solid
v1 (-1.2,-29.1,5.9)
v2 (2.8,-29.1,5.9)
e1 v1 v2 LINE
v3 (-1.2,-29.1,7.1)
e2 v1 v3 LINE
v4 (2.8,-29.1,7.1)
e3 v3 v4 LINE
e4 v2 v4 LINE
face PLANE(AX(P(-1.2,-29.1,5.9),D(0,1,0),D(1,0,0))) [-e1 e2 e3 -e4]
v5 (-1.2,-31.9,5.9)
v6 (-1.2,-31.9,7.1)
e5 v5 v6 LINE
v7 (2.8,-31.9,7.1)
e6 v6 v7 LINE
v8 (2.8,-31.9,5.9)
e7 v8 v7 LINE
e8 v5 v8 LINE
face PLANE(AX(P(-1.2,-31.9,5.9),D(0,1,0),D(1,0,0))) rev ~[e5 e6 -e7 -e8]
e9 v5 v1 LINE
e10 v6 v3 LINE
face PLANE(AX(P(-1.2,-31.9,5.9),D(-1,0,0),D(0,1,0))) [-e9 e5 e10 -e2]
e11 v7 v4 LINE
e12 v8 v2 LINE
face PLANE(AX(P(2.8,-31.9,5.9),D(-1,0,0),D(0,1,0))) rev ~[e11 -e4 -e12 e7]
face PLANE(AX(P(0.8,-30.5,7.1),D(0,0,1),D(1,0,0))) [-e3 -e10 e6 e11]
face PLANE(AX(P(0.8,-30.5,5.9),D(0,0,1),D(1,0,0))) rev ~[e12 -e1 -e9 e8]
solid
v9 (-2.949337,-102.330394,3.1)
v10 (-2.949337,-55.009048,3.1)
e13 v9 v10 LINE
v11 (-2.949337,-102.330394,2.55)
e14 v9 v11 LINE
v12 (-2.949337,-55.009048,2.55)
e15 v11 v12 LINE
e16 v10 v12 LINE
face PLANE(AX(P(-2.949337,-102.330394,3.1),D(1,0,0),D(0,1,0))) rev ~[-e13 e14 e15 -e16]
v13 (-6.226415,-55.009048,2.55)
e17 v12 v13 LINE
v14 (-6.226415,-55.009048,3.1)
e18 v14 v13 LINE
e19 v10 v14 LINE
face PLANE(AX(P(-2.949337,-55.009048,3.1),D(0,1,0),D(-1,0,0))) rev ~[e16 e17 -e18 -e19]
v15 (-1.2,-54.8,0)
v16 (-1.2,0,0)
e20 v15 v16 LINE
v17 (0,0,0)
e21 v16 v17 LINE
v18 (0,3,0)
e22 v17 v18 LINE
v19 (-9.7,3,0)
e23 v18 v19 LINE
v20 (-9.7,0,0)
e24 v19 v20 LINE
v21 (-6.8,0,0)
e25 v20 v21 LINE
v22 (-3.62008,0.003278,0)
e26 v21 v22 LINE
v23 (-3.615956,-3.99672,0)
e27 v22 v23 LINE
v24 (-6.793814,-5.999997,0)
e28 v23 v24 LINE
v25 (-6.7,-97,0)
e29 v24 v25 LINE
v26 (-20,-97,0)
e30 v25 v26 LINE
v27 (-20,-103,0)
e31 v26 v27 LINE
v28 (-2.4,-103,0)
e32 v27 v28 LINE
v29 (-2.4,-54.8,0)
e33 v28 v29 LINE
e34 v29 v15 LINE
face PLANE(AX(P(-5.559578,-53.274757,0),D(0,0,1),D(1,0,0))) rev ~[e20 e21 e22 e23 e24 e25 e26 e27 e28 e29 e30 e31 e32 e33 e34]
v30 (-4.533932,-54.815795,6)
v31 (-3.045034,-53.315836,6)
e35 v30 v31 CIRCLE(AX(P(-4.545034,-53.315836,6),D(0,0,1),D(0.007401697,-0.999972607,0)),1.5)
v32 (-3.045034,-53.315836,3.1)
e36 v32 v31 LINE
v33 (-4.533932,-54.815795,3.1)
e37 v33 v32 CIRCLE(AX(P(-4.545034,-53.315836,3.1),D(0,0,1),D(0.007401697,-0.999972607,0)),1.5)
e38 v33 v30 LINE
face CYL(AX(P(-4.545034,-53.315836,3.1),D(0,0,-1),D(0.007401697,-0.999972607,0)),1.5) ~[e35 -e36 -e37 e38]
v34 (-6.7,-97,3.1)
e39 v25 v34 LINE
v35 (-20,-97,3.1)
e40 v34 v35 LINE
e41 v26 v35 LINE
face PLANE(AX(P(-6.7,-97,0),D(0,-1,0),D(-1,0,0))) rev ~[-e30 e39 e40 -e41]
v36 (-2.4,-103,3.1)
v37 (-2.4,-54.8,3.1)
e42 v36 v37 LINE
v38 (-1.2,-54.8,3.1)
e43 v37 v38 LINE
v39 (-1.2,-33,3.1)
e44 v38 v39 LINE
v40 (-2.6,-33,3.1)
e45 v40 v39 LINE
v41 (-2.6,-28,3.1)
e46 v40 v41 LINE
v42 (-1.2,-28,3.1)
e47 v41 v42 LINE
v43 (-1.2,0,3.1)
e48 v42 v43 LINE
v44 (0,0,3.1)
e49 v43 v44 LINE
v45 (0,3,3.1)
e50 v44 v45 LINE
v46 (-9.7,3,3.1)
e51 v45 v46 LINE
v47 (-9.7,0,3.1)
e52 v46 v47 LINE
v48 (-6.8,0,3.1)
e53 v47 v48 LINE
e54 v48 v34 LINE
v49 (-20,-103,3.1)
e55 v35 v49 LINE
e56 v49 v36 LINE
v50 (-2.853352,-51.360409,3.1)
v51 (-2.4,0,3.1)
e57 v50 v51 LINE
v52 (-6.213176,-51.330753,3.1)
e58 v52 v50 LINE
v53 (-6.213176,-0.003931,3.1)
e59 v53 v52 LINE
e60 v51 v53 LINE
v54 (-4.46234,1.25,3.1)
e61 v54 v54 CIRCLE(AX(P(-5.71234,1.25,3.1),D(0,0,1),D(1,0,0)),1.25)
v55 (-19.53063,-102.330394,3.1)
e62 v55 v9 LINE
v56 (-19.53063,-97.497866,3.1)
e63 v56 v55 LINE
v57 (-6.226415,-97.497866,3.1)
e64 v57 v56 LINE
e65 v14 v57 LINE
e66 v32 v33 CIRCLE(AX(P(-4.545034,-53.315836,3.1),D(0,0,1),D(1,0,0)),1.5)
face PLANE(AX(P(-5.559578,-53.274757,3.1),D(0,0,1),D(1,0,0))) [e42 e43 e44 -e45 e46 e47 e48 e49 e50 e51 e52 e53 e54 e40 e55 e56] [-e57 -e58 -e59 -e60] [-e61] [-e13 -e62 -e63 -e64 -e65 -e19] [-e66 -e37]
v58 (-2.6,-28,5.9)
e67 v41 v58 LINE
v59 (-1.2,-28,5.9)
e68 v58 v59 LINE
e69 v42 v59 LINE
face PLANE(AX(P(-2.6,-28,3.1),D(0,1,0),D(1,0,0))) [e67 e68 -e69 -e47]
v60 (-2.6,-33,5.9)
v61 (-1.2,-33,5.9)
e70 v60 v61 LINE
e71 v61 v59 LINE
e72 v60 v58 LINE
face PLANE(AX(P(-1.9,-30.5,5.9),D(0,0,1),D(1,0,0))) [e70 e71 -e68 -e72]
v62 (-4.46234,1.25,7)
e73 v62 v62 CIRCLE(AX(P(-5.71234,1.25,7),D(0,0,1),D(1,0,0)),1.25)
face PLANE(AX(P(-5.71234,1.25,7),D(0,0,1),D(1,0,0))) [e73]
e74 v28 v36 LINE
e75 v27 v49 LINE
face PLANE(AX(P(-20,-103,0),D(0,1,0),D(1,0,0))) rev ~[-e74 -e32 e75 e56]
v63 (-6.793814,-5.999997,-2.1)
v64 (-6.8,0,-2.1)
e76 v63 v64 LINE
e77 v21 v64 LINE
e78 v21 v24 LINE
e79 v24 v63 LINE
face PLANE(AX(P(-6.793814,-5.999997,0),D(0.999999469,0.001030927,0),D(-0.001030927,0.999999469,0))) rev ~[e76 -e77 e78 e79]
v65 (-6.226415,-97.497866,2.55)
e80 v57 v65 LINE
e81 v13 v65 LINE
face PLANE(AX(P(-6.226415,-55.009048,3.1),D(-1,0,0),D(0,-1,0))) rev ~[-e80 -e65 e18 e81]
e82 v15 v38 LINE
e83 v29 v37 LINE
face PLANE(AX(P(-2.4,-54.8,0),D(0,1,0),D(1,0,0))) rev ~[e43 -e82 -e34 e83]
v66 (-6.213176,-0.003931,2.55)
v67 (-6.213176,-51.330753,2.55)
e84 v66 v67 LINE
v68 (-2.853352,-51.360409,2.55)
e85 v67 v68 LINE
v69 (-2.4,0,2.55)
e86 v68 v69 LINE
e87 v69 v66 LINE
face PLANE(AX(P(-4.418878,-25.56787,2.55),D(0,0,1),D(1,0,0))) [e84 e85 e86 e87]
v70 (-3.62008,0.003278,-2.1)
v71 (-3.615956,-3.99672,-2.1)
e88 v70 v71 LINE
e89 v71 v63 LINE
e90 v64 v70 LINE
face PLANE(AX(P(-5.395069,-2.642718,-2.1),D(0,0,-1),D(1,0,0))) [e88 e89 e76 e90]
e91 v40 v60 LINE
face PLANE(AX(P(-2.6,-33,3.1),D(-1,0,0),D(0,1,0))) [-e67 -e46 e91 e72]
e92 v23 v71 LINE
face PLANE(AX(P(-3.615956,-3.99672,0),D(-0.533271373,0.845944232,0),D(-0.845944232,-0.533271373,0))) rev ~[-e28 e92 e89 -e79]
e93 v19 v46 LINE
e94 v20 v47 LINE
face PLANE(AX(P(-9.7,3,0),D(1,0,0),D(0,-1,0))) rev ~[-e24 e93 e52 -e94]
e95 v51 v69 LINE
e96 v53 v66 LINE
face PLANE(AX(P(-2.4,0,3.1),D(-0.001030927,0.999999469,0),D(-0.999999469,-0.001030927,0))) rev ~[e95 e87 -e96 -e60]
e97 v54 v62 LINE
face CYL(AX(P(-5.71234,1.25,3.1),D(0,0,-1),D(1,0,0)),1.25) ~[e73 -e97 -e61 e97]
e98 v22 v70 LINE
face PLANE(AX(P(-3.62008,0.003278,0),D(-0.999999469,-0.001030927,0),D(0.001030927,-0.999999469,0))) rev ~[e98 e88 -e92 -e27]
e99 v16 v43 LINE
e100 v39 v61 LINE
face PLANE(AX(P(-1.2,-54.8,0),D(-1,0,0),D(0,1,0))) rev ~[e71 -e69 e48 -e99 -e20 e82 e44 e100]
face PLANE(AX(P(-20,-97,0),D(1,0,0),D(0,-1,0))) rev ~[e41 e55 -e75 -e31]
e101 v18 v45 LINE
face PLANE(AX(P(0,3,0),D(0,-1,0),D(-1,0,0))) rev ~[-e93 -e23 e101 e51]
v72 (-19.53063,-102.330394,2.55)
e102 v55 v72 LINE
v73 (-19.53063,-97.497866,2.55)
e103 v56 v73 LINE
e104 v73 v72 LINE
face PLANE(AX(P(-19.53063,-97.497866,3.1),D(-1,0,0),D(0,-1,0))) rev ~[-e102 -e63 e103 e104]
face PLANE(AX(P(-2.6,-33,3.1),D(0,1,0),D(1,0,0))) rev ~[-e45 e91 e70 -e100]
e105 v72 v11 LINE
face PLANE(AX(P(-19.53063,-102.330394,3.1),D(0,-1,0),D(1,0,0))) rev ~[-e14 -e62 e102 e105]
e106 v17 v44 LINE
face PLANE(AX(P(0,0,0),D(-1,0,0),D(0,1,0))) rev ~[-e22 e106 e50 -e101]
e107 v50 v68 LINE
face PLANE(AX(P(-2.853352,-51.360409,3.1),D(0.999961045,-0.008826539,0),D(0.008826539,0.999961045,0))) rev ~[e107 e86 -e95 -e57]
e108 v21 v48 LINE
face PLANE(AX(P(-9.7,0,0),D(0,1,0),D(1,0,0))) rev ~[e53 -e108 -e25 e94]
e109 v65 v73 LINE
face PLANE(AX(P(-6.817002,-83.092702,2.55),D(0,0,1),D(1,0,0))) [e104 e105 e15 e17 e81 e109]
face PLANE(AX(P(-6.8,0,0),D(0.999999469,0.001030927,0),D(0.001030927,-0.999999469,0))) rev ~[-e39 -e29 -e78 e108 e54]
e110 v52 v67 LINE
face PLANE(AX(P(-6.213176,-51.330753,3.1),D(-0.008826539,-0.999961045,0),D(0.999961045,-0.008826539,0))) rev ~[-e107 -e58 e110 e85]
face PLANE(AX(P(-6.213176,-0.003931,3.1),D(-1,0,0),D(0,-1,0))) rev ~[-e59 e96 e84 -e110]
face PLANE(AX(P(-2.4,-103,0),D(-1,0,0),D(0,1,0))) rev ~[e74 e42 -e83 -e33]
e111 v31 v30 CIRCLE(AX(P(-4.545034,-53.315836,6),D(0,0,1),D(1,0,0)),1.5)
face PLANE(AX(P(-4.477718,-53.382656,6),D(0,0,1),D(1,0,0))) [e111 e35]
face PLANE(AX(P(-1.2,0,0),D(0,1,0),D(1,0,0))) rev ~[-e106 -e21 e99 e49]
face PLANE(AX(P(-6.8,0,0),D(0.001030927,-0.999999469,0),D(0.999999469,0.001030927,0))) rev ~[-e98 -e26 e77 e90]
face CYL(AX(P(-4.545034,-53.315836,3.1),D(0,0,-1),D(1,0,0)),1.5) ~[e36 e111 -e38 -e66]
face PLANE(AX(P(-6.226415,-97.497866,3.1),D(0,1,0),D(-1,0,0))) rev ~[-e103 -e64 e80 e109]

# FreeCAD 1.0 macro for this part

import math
import FreeCAD as App
import Part
import Sketcher
from FreeCAD import Vector
Q = App.Units.Quantity


def add_polygon(sketch, points):
    """Adds a closed chain of lines whose ends are joined by coincident constraints."""
    first, n = sketch.GeometryCount, len(points)
    for a, b in zip(points, points[1:] + points[:1]):
        sketch.addGeometry(Part.LineSegment(App.Vector(*a, 0), App.Vector(*b, 0)), False)
    for i in range(n):
        sketch.addConstraint(Sketcher.Constraint("Coincident", first + i, 2, first + (i + 1) % n, 1))

doc = App.newDocument("Part")
body = doc.addObject("PartDesign::Body", "Body")

sketch1 = body.newObject("Sketcher::SketchObject", "Sketch")
sketch1.AttachmentSupport = (doc.getObject("XY_Plane"), [""])
sketch1.MapMode = "FlatFace"
add_polygon(sketch1, [(0, 0), (0, 3), (-9.7, 3), (-9.7, 0), (-6.8, 0), (-6.7, -97), (-20, -97), (-20, -103), (-2.4, -103), (-2.4, -54.8), (-1.2, -54.8), (-1.2, 0)])
sketch1.addConstraint(Sketcher.Constraint("Vertical", 0))
sketch1.addConstraint(Sketcher.Constraint("Horizontal", 1))
sketch1.addConstraint(Sketcher.Constraint("Vertical", 2))
sketch1.addConstraint(Sketcher.Constraint("Horizontal", 3))
sketch1.addConstraint(Sketcher.Constraint("Horizontal", 5))
sketch1.addConstraint(Sketcher.Constraint("Vertical", 6))
sketch1.addConstraint(Sketcher.Constraint("Horizontal", 7))
sketch1.addConstraint(Sketcher.Constraint("Vertical", 8))
sketch1.addConstraint(Sketcher.Constraint("Horizontal", 9))
sketch1.addConstraint(Sketcher.Constraint("Vertical", 10))
sketch1.addConstraint(Sketcher.Constraint("Horizontal", 11))
sketch1.addConstraint(Sketcher.Constraint("Coincident", 11, 2, -1, 1))
sketch1.addConstraint(Sketcher.Constraint("PointOnObject", 2, 2, -1))
sketch1.addConstraint(Sketcher.Constraint("Equal", 9, 11))
sketch1.addConstraint(Sketcher.Constraint("DistanceY", 0, 1, 0, 2, Q("3 mm")))
sketch1.addConstraint(Sketcher.Constraint("DistanceY", 6, 2, 6, 1, Q("6 mm")))
sketch1.addConstraint(Sketcher.Constraint("DistanceX", 1, 2, 1, 1, Q("9.7 mm")))
sketch1.addConstraint(Sketcher.Constraint("DistanceX", 3, 1, 3, 2, Q("2.9 mm")))
sketch1.addConstraint(Sketcher.Constraint("DistanceX", 5, 2, 5, 1, Q("13.3 mm")))
sketch1.addConstraint(Sketcher.Constraint("DistanceX", 7, 1, 7, 2, Q("17.6 mm")))
sketch1.addConstraint(Sketcher.Constraint("DistanceX", 9, 1, 9, 2, Q("1.2 mm")))
sketch1.addConstraint(Sketcher.Constraint("DistanceY", 8, 1, 8, 2, Q("48.2 mm")))
sketch1.addConstraint(Sketcher.Constraint("DistanceY", 10, 1, 10, 2, Q("54.8 mm")))
pad1 = body.newObject("PartDesign::Pad", "Pad")
pad1.Profile = sketch1
pad1.Length = 3.1

sketch2 = body.newObject("Sketcher::SketchObject", "Sketch001")
sketch2.AttachmentSupport = (doc.getObject("XY_Plane"), [""])
sketch2.MapMode = "FlatFace"
add_polygon(sketch2, [(-6.8, -6), (-6.8, 0), (-3.6, 0), (-3.6, -4)])
sketch2.addConstraint(Sketcher.Constraint("PointOnObject", 0, 2, -1))
sketch2.addConstraint(Sketcher.Constraint("Perpendicular", 0, 1))
sketch2.addConstraint(Sketcher.Constraint("Perpendicular", 1, 2))
sketch2.addConstraint(Sketcher.Constraint("Distance", 0, Q("6 mm")))
sketch2.addConstraint(Sketcher.Constraint("Distance", 2, Q("4 mm")))
sketch2.addConstraint(Sketcher.Constraint("DistanceX", 0, 2, -1, 1, Q("6.8 mm")))
sketch2.addConstraint(Sketcher.Constraint("Distance", 1, Q("3.179922 mm")))
sketch2.addConstraint(Sketcher.Constraint("DistanceY", -1, 1, 1, 2, Q("0.003278 mm")))
pad2 = body.newObject("PartDesign::Pad", "Pad001")
pad2.Profile = sketch2
pad2.Length = 2.1
pad2.Reversed = True

sketch3 = body.newObject("Sketcher::SketchObject", "Sketch002")
sketch3.AttachmentSupport = (doc.getObject("XY_Plane"), [""])
sketch3.MapMode = "FlatFace"
sketch3.AttachmentOffset = App.Placement(Vector(0, 0, 3.1), App.Rotation())
sketch3.addGeometry(Part.Circle(Vector(-5.7, 1.2, 0), Vector(0, 0, 1), 1.2), False)
sketch3.addConstraint(Sketcher.Constraint("Diameter", 0, Q("2.5 mm")))
sketch3.addConstraint(Sketcher.Constraint("DistanceY", -1, 1, 0, 3, Q("1.25 mm")))
sketch3.addConstraint(Sketcher.Constraint("DistanceX", 0, 3, -1, 1, Q("5.71234 mm")))
pad3 = body.newObject("PartDesign::Pad", "Pad002")
pad3.Profile = sketch3
pad3.Length = 3.9

sketch4 = body.newObject("Sketcher::SketchObject", "Sketch003")
sketch4.AttachmentSupport = (doc.getObject("XY_Plane"), [""])
sketch4.MapMode = "FlatFace"
sketch4.AttachmentOffset = App.Placement(Vector(0, 0, 3.1), App.Rotation())
add_polygon(sketch4, [(-2.6, -28), (-2.6, -33), (-1.2, -33), (-1.2, -28)])
sketch4.addConstraint(Sketcher.Constraint("Vertical", 0))
sketch4.addConstraint(Sketcher.Constraint("Horizontal", 1))
sketch4.addConstraint(Sketcher.Constraint("Vertical", 2))
sketch4.addConstraint(Sketcher.Constraint("Horizontal", 3))
sketch4.addConstraint(Sketcher.Constraint("DistanceY", 0, 2, 0, 1, Q("5 mm")))
sketch4.addConstraint(Sketcher.Constraint("DistanceX", 1, 1, 1, 2, Q("1.4 mm")))
sketch4.addConstraint(Sketcher.Constraint("DistanceY", 0, 2, -1, 1, Q("33 mm")))
sketch4.addConstraint(Sketcher.Constraint("DistanceX", 0, 2, -1, 1, Q("2.6 mm")))
pad4 = body.newObject("PartDesign::Pad", "Pad003")
pad4.Profile = sketch4
pad4.Length = 2.8

sketch5 = body.newObject("Sketcher::SketchObject", "Sketch004")
sketch5.AttachmentSupport = (doc.getObject("XY_Plane"), [""])
sketch5.MapMode = "FlatFace"
sketch5.AttachmentOffset = App.Placement(Vector(0, 0, 3.1), App.Rotation())
sketch5.addGeometry(Part.ArcOfCircle(Part.Circle(Vector(-4.545034, -53.315836, 0), Vector(0, 0, 1), 1.5), math.radians(-89.57591), math.radians(0)), False)
sketch5.addGeometry(Part.ArcOfCircle(Part.Circle(Vector(-4.545034, -53.315836, 0), Vector(0, 0, 1), 1.5), math.radians(0), math.radians(270.42409)), False)
sketch5.addConstraint(Sketcher.Constraint("Tangent", 0, 1, 1, 2))
sketch5.addConstraint(Sketcher.Constraint("Coincident", 1, 1, 0, 2))
sketch5.addConstraint(Sketcher.Constraint("Horizontal", 0, 3, 1, 1))
sketch5.addConstraint(Sketcher.Constraint("Radius", 0, Q("1.5 mm")))
sketch5.addConstraint(Sketcher.Constraint("DistanceX", 0, 1, -1, 1, Q("4.533932 mm")))
sketch5.addConstraint(Sketcher.Constraint("DistanceY", 0, 1, 0, 3, Q("1.499959 mm")))
sketch5.addConstraint(Sketcher.Constraint("DistanceY", 0, 3, -1, 1, Q("53.315836 mm")))
pad5 = body.newObject("PartDesign::Pad", "Pad004")
pad5.Profile = sketch5
pad5.Length = 2.9

sketch6 = body.newObject("Sketcher::SketchObject", "Sketch005")
sketch6.AttachmentSupport = (doc.getObject("XY_Plane"), [""])
sketch6.MapMode = "FlatFace"
sketch6.AttachmentOffset = App.Placement(Vector(0, 0, 3.1), App.Rotation())
add_polygon(sketch6, [(-2.9, -102.3), (-2.9, -55), (-6.2, -55), (-6.2, -97.5), (-19.5, -97.5), (-19.5, -102.3)])
sketch6.addConstraint(Sketcher.Constraint("Vertical", 0))
sketch6.addConstraint(Sketcher.Constraint("Horizontal", 1))
sketch6.addConstraint(Sketcher.Constraint("Vertical", 2))
sketch6.addConstraint(Sketcher.Constraint("Horizontal", 3))
sketch6.addConstraint(Sketcher.Constraint("Vertical", 4))
sketch6.addConstraint(Sketcher.Constraint("Horizontal", 5))
sketch6.addConstraint(Sketcher.Constraint("DistanceX", 1, 2, 1, 1, Q("3.277078 mm")))
sketch6.addConstraint(Sketcher.Constraint("DistanceY", 4, 2, 4, 1, Q("4.832529 mm")))
sketch6.addConstraint(Sketcher.Constraint("DistanceX", 3, 2, 3, 1, Q("13.304214 mm")))
sketch6.addConstraint(Sketcher.Constraint("DistanceY", 0, 1, 0, 2, Q("47.321346 mm")))
sketch6.addConstraint(Sketcher.Constraint("DistanceY", 0, 2, -1, 1, Q("55.009048 mm")))
sketch6.addConstraint(Sketcher.Constraint("DistanceX", 3, 2, -1, 1, Q("19.53063 mm")))
pocket1 = body.newObject("PartDesign::Pocket", "Pocket")
pocket1.Profile = sketch6
pocket1.Length = 0.55

sketch7 = body.newObject("Sketcher::SketchObject", "Sketch006")
sketch7.AttachmentSupport = (doc.getObject("XY_Plane"), [""])
sketch7.MapMode = "FlatFace"
sketch7.AttachmentOffset = App.Placement(Vector(0, 0, 3.1), App.Rotation())
add_polygon(sketch7, [(-2.9, -51.4), (-2.4, 0), (-6.2, 0), (-6.2, -51.3)])
sketch7.addConstraint(Sketcher.Constraint("Vertical", 2))
sketch7.addConstraint(Sketcher.Constraint("PointOnObject", 0, 2, -1))
sketch7.addConstraint(Sketcher.Constraint("Perpendicular", 0, 3))
sketch7.addConstraint(Sketcher.Constraint("DistanceX", 0, 2, -1, 1, Q("2.4 mm")))
sketch7.addConstraint(Sketcher.Constraint("DistanceY", 2, 2, 2, 1, Q("51.326822 mm")))
sketch7.addConstraint(Sketcher.Constraint("Distance", 0, Q("51.36241 mm")))
sketch7.addConstraint(Sketcher.Constraint("Distance", 1, Q("3.813178 mm")))
sketch7.addConstraint(Sketcher.Constraint("DistanceY", 1, 2, -1, 1, Q("0.003931 mm")))
pocket2 = body.newObject("PartDesign::Pocket", "Pocket001")
pocket2.Profile = sketch7
pocket2.Length = 0.55
body2 = doc.addObject("PartDesign::Body", "Body001")

sketch8 = body2.newObject("Sketcher::SketchObject", "Sketch007")
sketch8.AttachmentSupport = (doc.getObject("XY_Plane001"), [""])
sketch8.MapMode = "FlatFace"
sketch8.AttachmentOffset = App.Placement(Vector(0, 0, 5.9), App.Rotation())
add_polygon(sketch8, [(-1.2, -29.1), (-1.2, -31.9), (2.8, -31.9), (2.8, -29.1)])
sketch8.addConstraint(Sketcher.Constraint("Vertical", 0))
sketch8.addConstraint(Sketcher.Constraint("Horizontal", 1))
sketch8.addConstraint(Sketcher.Constraint("Vertical", 2))
sketch8.addConstraint(Sketcher.Constraint("Horizontal", 3))
sketch8.addConstraint(Sketcher.Constraint("DistanceX", 1, 1, 1, 2, Q("4 mm")))
sketch8.addConstraint(Sketcher.Constraint("DistanceY", 0, 2, 0, 1, Q("2.8 mm")))
sketch8.addConstraint(Sketcher.Constraint("DistanceX", 0, 2, -1, 1, Q("1.2 mm")))
sketch8.addConstraint(Sketcher.Constraint("DistanceY", 0, 2, -1, 1, Q("31.9 mm")))
pad6 = body2.newObject("PartDesign::Pad", "Pad005")
pad6.Profile = sketch8
pad6.Length = 1.2

doc.recompute()
